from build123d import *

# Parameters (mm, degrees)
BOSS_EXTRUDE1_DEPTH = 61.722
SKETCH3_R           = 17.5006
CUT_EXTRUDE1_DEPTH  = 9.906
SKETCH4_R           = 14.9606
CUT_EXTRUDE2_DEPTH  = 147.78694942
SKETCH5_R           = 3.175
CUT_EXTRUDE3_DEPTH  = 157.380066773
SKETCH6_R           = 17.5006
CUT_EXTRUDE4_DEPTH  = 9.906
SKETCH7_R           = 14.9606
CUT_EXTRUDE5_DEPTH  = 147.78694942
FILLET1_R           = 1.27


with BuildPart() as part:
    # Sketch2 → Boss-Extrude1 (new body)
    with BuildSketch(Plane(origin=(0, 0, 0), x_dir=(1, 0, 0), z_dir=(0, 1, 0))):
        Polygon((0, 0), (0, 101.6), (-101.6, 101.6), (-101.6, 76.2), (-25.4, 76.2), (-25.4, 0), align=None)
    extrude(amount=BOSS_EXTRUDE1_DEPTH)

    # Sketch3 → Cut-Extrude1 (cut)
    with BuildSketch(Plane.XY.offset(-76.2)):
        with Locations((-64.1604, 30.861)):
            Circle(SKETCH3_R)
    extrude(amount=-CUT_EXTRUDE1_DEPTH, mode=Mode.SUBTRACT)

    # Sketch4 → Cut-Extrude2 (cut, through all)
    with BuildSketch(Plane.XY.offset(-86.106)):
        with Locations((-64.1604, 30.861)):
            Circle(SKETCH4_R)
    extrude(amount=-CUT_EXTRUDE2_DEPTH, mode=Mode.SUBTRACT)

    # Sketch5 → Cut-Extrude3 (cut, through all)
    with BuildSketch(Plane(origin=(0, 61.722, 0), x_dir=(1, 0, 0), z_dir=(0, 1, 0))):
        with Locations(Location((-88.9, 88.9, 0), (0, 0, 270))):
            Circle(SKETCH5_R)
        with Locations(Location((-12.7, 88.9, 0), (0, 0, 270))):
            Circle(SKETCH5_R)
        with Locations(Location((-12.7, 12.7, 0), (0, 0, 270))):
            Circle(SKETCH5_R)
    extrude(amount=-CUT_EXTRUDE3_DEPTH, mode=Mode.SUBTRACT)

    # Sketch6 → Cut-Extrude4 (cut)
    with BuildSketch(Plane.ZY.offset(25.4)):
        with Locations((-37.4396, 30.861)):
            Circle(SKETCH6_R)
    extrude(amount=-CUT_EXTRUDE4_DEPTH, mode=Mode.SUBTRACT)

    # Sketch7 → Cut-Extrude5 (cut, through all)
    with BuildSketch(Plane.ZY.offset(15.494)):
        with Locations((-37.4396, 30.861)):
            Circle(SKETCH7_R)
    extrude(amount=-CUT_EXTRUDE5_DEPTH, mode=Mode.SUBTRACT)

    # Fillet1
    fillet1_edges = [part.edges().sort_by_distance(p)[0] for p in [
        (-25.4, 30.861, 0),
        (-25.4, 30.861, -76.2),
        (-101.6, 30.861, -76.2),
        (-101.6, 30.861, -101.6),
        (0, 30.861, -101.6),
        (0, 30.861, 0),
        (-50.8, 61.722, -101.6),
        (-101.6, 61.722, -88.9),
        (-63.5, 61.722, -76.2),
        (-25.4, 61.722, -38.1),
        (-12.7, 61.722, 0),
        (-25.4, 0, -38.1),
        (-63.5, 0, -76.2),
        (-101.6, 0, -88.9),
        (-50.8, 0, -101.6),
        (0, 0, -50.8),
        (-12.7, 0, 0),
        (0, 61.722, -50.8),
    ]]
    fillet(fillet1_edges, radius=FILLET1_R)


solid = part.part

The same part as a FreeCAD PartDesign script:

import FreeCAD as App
import Part
import Sketcher
Q = App.Units.Quantity


def edges_at(feature, points):
    """Names of the edges that pass closest to the given points."""
    edges = feature.Shape.Edges
    near = lambda p: min(range(len(edges)), key=lambda i: edges[i].distToShape(Part.Vertex(*p))[0])
    return sorted({f"Edge{near(p) + 1}" for p in points})


def add_polygon(sketch, points):
    """Adds a closed chain of lines whose ends are joined by coincident constraints."""
    first, n = sketch.GeometryCount, len(points)
    for a, b in zip(points, points[1:] + points[:1]):
        sketch.addGeometry(Part.LineSegment(App.Vector(*a, 0), App.Vector(*b, 0)), False)
    for i in range(n):
        sketch.addConstraint(Sketcher.Constraint("Coincident", first + i, 2, first + (i + 1) % n, 1))

doc = App.newDocument("Part")
body = doc.addObject("PartDesign::Body", "Body")

# Sketch on XZ plane
sketch1 = body.newObject("Sketcher::SketchObject", "Sketch")
sketch1.AttachmentSupport = (doc.getObject("XZ_Plane"), [""])
sketch1.MapMode = "FlatFace"
add_polygon(sketch1, [(0, 0), (0, -102), (-102, -102), (-102, -76), (-25, -76), (-25, 0)])  # lines 0-5
sketch1.addConstraint([
    Sketcher.Constraint("Vertical", 0),
    Sketcher.Constraint("Horizontal", 1),
    Sketcher.Constraint("Vertical", 2),
    Sketcher.Constraint("Horizontal", 3),
    Sketcher.Constraint("Vertical", 4),
    Sketcher.Constraint("Horizontal", 5),
    Sketcher.Constraint("Coincident", 5, 2, -1, 1),
    Sketcher.Constraint("Equal", 1, 0),
    Sketcher.Constraint("Equal", 5, 2),
    Sketcher.Constraint("DistanceX", 1, 2, 1, 1, Q("4 in")),
    Sketcher.Constraint("DistanceX", 3, 1, 3, 2, Q("3 in")),
])
pad1 = body.newObject("PartDesign::Pad", "Pad")
pad1.Profile = sketch1
pad1.Length = Q("2.43 in")
pad1.Reversed = True

# Sketch on XY plane
sketch2 = body.newObject("Sketcher::SketchObject", "Sketch001")
sketch2.AttachmentSupport = (doc.getObject("XY_Plane"), [""])
sketch2.MapMode = "FlatFace"
sketch2.AttachmentOffset = App.Placement(App.Vector(0, 0, -3 * 25.4), App.Rotation())
sketch2.addGeometry(Part.Circle(App.Vector(-64, 31, 0), App.Vector(0, 0, 1), 18), False)
sketch2.addConstraint([
    Sketcher.Constraint("Diameter", 0, Q("1.378 in")),
    Sketcher.Constraint("DistanceX", 0, 3, -1, 1, Q("2.526 in")),
    Sketcher.Constraint("DistanceY", -1, 1, 0, 3, Q("1.215 in")),
])
pocket1 = body.newObject("PartDesign::Pocket", "Pocket")
pocket1.Profile = sketch2
pocket1.Length = Q("0.39 in")

# Sketch on XY plane
sketch3 = body.newObject("Sketcher::SketchObject", "Sketch002")
sketch3.AttachmentSupport = (doc.getObject("XY_Plane"), [""])
sketch3.MapMode = "FlatFace"
sketch3.AttachmentOffset = App.Placement(App.Vector(0, 0, -3.39 * 25.4), App.Rotation())
sketch3.addGeometry(Part.Circle(App.Vector(-64, 31, 0), App.Vector(0, 0, 1), 15), False)
sketch3.addConstraint([
    Sketcher.Constraint("Diameter", 0, Q("1.178 in")),
    Sketcher.Constraint("DistanceX", 0, 3, -1, 1, Q("2.526 in")),
    Sketcher.Constraint("DistanceY", -1, 1, 0, 3, Q("1.215 in")),
])
pocket2 = body.newObject("PartDesign::Pocket", "Pocket001")
pocket2.Profile = sketch3
pocket2.Type = "ThroughAll"

# Sketch on XZ plane
sketch4 = body.newObject("Sketcher::SketchObject", "Sketch003")
sketch4.AttachmentSupport = (doc.getObject("XZ_Plane"), [""])
sketch4.MapMode = "FlatFace"
sketch4.AttachmentOffset = App.Placement(App.Vector(0, 0, -2.43 * 25.4), App.Rotation())
sketch4.addGeometry([
    Part.Circle(App.Vector(-88.9, -88.9, 0), App.Vector(0, 0, 1), 3.2),
    Part.Circle(App.Vector(-12.7, -88.9, 0), App.Vector(0, 0, 1), 3.2),
    Part.Circle(App.Vector(-12.7, -12.7, 0), App.Vector(0, 0, 1), 3.2),
], False)
sketch4.addConstraint([
    Sketcher.Constraint("Equal", 0, 1),
    Sketcher.Constraint("Equal", 1, 2),
    Sketcher.Constraint("Horizontal", 0, 3, 1, 3),
    Sketcher.Constraint("Vertical", 1, 3, 2, 3),
    Sketcher.Constraint("Diameter", 0, Q("0.25 in")),
    Sketcher.Constraint("DistanceX", 0, 3, 1, 3, Q("3 in")),
    Sketcher.Constraint("DistanceY", 1, 3, 2, 3, Q("3 in")),
    Sketcher.Constraint("DistanceX", 0, 3, -1, 1, Q("3.5 in")),
    Sketcher.Constraint("DistanceY", 0, 3, -1, 1, Q("3.5 in")),
])
pocket3 = body.newObject("PartDesign::Pocket", "Pocket002")
pocket3.Profile = sketch4
pocket3.Type = "ThroughAll"
pocket3.Reversed = True

# Sketch on YZ plane
sketch5 = body.newObject("Sketcher::SketchObject", "Sketch004")
sketch5.AttachmentSupport = (doc.getObject("YZ_Plane"), [""])
sketch5.MapMode = "FlatFace"
sketch5.AttachmentOffset = App.Placement(App.Vector(0, 0, -1 * 25.4), App.Rotation())
sketch5.addGeometry(Part.Circle(App.Vector(31, -37, 0), App.Vector(0, 0, 1), 18), False)
sketch5.addConstraint([
    Sketcher.Constraint("Diameter", 0, Q("1.378 in")),
    Sketcher.Constraint("DistanceX", -1, 1, 0, 3, Q("1.215 in")),
    Sketcher.Constraint("DistanceY", 0, 3, -1, 1, Q("1.474 in")),
])
pocket4 = body.newObject("PartDesign::Pocket", "Pocket003")
pocket4.Profile = sketch5
pocket4.Length = Q("0.39 in")
pocket4.Reversed = True

# Sketch on YZ plane
sketch6 = body.newObject("Sketcher::SketchObject", "Sketch005")
sketch6.AttachmentSupport = (doc.getObject("YZ_Plane"), [""])
sketch6.MapMode = "FlatFace"
sketch6.AttachmentOffset = App.Placement(App.Vector(0, 0, -0.61 * 25.4), App.Rotation())
sketch6.addGeometry(Part.Circle(App.Vector(31, -37, 0), App.Vector(0, 0, 1), 15), False)
sketch6.addConstraint([
    Sketcher.Constraint("Diameter", 0, Q("1.178 in")),
    Sketcher.Constraint("DistanceX", -1, 1, 0, 3, Q("1.215 in")),
    Sketcher.Constraint("DistanceY", 0, 3, -1, 1, Q("1.474 in")),
])
pocket5 = body.newObject("PartDesign::Pocket", "Pocket004")
pocket5.Profile = sketch6
pocket5.Type = "ThroughAll"
pocket5.Reversed = True
doc.recompute()

fillet = body.newObject("PartDesign::Fillet", "Fillet")
fillet.Base = (pocket5, edges_at(pocket5, [
    (-25.4, 30.861, 0),
    (-25.4, 30.861, -76.2),
    (-101.6, 30.861, -76.2),
    (-101.6, 30.861, -101.6),
    (0, 30.861, -101.6),
    (0, 30.861, 0),
    (-50.8, 61.722, -101.6),
    (-101.6, 61.722, -88.9),
    (-63.5, 61.722, -76.2),
    (-25.4, 61.722, -38.1),
    (-12.7, 61.722, 0),
    (-25.4, 0, -38.1),
    (-63.5, 0, -76.2),
    (-101.6, 0, -88.9),
    (-50.8, 0, -101.6),
    (0, 0, -50.8),
    (-12.7, 0, 0),
    (0, 61.722, -50.8),
]))
fillet.Radius = Q("0.05 in")

doc.recompute()
